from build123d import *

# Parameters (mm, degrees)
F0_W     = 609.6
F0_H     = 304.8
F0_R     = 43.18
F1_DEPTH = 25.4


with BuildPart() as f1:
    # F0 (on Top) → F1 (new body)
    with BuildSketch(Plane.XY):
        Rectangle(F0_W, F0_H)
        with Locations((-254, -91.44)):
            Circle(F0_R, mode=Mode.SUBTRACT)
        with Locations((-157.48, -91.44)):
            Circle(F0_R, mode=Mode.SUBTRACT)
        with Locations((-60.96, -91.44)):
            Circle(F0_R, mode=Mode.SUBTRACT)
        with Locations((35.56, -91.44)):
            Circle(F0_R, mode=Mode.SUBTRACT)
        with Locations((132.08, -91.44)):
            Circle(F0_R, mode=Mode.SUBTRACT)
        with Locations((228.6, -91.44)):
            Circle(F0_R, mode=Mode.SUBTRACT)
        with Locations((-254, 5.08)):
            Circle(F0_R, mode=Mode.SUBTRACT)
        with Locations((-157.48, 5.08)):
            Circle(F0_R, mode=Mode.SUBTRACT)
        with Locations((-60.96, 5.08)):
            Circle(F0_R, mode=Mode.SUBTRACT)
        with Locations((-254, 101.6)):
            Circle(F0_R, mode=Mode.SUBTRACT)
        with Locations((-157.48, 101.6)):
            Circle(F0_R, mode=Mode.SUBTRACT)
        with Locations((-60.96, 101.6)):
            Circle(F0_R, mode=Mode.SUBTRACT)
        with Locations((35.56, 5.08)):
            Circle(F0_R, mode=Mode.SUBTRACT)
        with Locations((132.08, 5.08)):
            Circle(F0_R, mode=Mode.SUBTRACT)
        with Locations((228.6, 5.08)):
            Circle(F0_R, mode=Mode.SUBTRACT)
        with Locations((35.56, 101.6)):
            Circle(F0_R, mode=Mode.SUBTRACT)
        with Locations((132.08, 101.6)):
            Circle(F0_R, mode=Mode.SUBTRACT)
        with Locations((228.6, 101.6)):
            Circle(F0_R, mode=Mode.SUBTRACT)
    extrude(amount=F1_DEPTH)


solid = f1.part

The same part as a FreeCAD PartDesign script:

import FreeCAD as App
import Part
import Sketcher

V = App.Vector
Q = App.Units.Quantity


def add_polygon(sketch, points):
    """Adds a closed chain of lines whose ends are joined by coincident constraints."""
    first, n = sketch.GeometryCount, len(points)
    for a, b in zip(points, points[1:] + points[:1]):
        sketch.addGeometry(Part.LineSegment(App.Vector(*a, 0), App.Vector(*b, 0)), False)
    for i in range(n):
        sketch.addConstraint(Sketcher.Constraint("Coincident", first + i, 2, first + (i + 1) % n, 1))

doc = App.newDocument("Part")
body = doc.addObject("PartDesign::Body", "Body")

# Sketch on XY plane
sketch1 = body.newObject("Sketcher::SketchObject", "Sketch")
sketch1.AttachmentSupport = (doc.getObject("XY_Plane"), [""])
sketch1.MapMode = "FlatFace"
add_polygon(sketch1, [(-305, 152), (-305, -152), (305, -152), (305, 152)])  # lines 0-3
sketch1.addGeometry(Part.Circle(V(-254, -91, 0), V(0, 0, 1), 43), False)  # 4
sketch1.addGeometry(Part.Circle(V(-157, -91, 0), V(0, 0, 1), 43), False)  # 5
sketch1.addGeometry(Part.Circle(V(-61, -91, 0), V(0, 0, 1), 43), False)  # 6
sketch1.addGeometry(Part.Circle(V(36, -91, 0), V(0, 0, 1), 43), False)  # 7
sketch1.addGeometry(Part.Circle(V(132, -91, 0), V(0, 0, 1), 43), False)  # 8
sketch1.addGeometry(Part.Circle(V(229, -91, 0), V(0, 0, 1), 43), False)  # 9
sketch1.addGeometry(Part.Circle(V(-254, 5, 0), V(0, 0, 1), 43), False)  # 10
sketch1.addGeometry(Part.Circle(V(-157, 5, 0), V(0, 0, 1), 43), False)  # 11
sketch1.addGeometry(Part.Circle(V(-61, 5, 0), V(0, 0, 1), 43), False)  # 12
sketch1.addGeometry(Part.Circle(V(-254, 102, 0), V(0, 0, 1), 43), False)  # 13
sketch1.addGeometry(Part.Circle(V(-157, 102, 0), V(0, 0, 1), 43), False)  # 14
sketch1.addGeometry(Part.Circle(V(-61, 102, 0), V(0, 0, 1), 43), False)  # 15
sketch1.addGeometry(Part.Circle(V(36, 5, 0), V(0, 0, 1), 43), False)  # 16
sketch1.addGeometry(Part.Circle(V(132, 5, 0), V(0, 0, 1), 43), False)  # 17
sketch1.addGeometry(Part.Circle(V(229, 5, 0), V(0, 0, 1), 43), False)  # 18
sketch1.addGeometry(Part.Circle(V(36, 102, 0), V(0, 0, 1), 43), False)  # 19
sketch1.addGeometry(Part.Circle(V(132, 102, 0), V(0, 0, 1), 43), False)  # 20
sketch1.addGeometry(Part.Circle(V(229, 102, 0), V(0, 0, 1), 43), False)  # 21
sketch1.addConstraint([
    Sketcher.Constraint("Vertical", 0),
    Sketcher.Constraint("Horizontal", 1),
    Sketcher.Constraint("Vertical", 2),
    Sketcher.Constraint("Horizontal", 3),
    Sketcher.Constraint("Equal", 4, 5),
    Sketcher.Constraint("Equal", 5, 6),
    Sketcher.Constraint("Equal", 6, 7),
    Sketcher.Constraint("Equal", 7, 8),
    Sketcher.Constraint("Equal", 8, 9),
    Sketcher.Constraint("Equal", 9, 10),
    Sketcher.Constraint("Equal", 10, 11),
    Sketcher.Constraint("Equal", 11, 12),
    Sketcher.Constraint("Equal", 12, 13),
    Sketcher.Constraint("Equal", 13, 14),
    Sketcher.Constraint("Equal", 14, 15),
    Sketcher.Constraint("Equal", 15, 16),
    Sketcher.Constraint("Equal", 16, 17),
    Sketcher.Constraint("Equal", 17, 18),
    Sketcher.Constraint("Equal", 18, 19),
    Sketcher.Constraint("Equal", 19, 20),
    Sketcher.Constraint("Equal", 20, 21),
    Sketcher.Constraint("Symmetric", 0, 2, 2, 2, -1, 1),
    Sketcher.Constraint("Horizontal", 4, 3, 5, 3),
    Sketcher.Constraint("Horizontal", 5, 3, 6, 3),
    Sketcher.Constraint("Horizontal", 6, 3, 7, 3),
    Sketcher.Constraint("Horizontal", 7, 3, 8, 3),
    Sketcher.Constraint("Horizontal", 8, 3, 9, 3),
    Sketcher.Constraint("Horizontal", 10, 3, 11, 3),
    Sketcher.Constraint("Horizontal", 11, 3, 12, 3),
    Sketcher.Constraint("Horizontal", 13, 3, 14, 3),
    Sketcher.Constraint("Horizontal", 14, 3, 15, 3),
    Sketcher.Constraint("Horizontal", 12, 3, 16, 3),
    Sketcher.Constraint("Horizontal", 16, 3, 17, 3),
    Sketcher.Constraint("Horizontal", 17, 3, 18, 3),
    Sketcher.Constraint("Horizontal", 15, 3, 19, 3),
    Sketcher.Constraint("Horizontal", 19, 3, 20, 3),
    Sketcher.Constraint("Horizontal", 20, 3, 21, 3),
    Sketcher.Constraint("Vertical", 4, 3, 10, 3),
    Sketcher.Constraint("Vertical", 5, 3, 11, 3),
    Sketcher.Constraint("Vertical", 6, 3, 12, 3),
    Sketcher.Constraint("Vertical", 10, 3, 13, 3),
    Sketcher.Constraint("Vertical", 11, 3, 14, 3),
    Sketcher.Constraint("Vertical", 12, 3, 15, 3),
    Sketcher.Constraint("Vertical", 7, 3, 16, 3),
    Sketcher.Constraint("Vertical", 8, 3, 17, 3),
    Sketcher.Constraint("Vertical", 9, 3, 18, 3),
    Sketcher.Constraint("Vertical", 16, 3, 19, 3),
    Sketcher.Constraint("Vertical", 17, 3, 20, 3),
    Sketcher.Constraint("Vertical", 18, 3, 21, 3),
    Sketcher.Constraint("Diameter", 4, Q("3.4 in")),
    Sketcher.Constraint("DistanceX", 1, 1, 1, 2, Q("24 in")),
    Sketcher.Constraint("DistanceY", 0, 2, 0, 1, Q("12 in")),
    Sketcher.Constraint("DistanceX", 4, 3, -1, 1, Q("10 in")),
    Sketcher.Constraint("DistanceX", -1, 1, 9, 3, Q("9 in")),
    Sketcher.Constraint("DistanceY", -1, 1, 13, 3, Q("4 in")),
    Sketcher.Constraint("DistanceY", 4, 3, -1, 1, Q("3.6 in")),
    Sketcher.Constraint("DistanceX", 5, 3, -1, 1, Q("6.2 in")),
    Sketcher.Constraint("DistanceX", 6, 3, -1, 1, Q("2.4 in")),
    Sketcher.Constraint("DistanceX", -1, 1, 7, 3, Q("1.4 in")),
    Sketcher.Constraint("DistanceX", -1, 1, 8, 3, Q("5.2 in")),
    Sketcher.Constraint("DistanceY", -1, 1, 10, 3, Q("0.2 in")),
])
pad1 = body.newObject("PartDesign::Pad", "Pad")
pad1.Profile = sketch1
pad1.Length = Q("1 in")

doc.recompute()
